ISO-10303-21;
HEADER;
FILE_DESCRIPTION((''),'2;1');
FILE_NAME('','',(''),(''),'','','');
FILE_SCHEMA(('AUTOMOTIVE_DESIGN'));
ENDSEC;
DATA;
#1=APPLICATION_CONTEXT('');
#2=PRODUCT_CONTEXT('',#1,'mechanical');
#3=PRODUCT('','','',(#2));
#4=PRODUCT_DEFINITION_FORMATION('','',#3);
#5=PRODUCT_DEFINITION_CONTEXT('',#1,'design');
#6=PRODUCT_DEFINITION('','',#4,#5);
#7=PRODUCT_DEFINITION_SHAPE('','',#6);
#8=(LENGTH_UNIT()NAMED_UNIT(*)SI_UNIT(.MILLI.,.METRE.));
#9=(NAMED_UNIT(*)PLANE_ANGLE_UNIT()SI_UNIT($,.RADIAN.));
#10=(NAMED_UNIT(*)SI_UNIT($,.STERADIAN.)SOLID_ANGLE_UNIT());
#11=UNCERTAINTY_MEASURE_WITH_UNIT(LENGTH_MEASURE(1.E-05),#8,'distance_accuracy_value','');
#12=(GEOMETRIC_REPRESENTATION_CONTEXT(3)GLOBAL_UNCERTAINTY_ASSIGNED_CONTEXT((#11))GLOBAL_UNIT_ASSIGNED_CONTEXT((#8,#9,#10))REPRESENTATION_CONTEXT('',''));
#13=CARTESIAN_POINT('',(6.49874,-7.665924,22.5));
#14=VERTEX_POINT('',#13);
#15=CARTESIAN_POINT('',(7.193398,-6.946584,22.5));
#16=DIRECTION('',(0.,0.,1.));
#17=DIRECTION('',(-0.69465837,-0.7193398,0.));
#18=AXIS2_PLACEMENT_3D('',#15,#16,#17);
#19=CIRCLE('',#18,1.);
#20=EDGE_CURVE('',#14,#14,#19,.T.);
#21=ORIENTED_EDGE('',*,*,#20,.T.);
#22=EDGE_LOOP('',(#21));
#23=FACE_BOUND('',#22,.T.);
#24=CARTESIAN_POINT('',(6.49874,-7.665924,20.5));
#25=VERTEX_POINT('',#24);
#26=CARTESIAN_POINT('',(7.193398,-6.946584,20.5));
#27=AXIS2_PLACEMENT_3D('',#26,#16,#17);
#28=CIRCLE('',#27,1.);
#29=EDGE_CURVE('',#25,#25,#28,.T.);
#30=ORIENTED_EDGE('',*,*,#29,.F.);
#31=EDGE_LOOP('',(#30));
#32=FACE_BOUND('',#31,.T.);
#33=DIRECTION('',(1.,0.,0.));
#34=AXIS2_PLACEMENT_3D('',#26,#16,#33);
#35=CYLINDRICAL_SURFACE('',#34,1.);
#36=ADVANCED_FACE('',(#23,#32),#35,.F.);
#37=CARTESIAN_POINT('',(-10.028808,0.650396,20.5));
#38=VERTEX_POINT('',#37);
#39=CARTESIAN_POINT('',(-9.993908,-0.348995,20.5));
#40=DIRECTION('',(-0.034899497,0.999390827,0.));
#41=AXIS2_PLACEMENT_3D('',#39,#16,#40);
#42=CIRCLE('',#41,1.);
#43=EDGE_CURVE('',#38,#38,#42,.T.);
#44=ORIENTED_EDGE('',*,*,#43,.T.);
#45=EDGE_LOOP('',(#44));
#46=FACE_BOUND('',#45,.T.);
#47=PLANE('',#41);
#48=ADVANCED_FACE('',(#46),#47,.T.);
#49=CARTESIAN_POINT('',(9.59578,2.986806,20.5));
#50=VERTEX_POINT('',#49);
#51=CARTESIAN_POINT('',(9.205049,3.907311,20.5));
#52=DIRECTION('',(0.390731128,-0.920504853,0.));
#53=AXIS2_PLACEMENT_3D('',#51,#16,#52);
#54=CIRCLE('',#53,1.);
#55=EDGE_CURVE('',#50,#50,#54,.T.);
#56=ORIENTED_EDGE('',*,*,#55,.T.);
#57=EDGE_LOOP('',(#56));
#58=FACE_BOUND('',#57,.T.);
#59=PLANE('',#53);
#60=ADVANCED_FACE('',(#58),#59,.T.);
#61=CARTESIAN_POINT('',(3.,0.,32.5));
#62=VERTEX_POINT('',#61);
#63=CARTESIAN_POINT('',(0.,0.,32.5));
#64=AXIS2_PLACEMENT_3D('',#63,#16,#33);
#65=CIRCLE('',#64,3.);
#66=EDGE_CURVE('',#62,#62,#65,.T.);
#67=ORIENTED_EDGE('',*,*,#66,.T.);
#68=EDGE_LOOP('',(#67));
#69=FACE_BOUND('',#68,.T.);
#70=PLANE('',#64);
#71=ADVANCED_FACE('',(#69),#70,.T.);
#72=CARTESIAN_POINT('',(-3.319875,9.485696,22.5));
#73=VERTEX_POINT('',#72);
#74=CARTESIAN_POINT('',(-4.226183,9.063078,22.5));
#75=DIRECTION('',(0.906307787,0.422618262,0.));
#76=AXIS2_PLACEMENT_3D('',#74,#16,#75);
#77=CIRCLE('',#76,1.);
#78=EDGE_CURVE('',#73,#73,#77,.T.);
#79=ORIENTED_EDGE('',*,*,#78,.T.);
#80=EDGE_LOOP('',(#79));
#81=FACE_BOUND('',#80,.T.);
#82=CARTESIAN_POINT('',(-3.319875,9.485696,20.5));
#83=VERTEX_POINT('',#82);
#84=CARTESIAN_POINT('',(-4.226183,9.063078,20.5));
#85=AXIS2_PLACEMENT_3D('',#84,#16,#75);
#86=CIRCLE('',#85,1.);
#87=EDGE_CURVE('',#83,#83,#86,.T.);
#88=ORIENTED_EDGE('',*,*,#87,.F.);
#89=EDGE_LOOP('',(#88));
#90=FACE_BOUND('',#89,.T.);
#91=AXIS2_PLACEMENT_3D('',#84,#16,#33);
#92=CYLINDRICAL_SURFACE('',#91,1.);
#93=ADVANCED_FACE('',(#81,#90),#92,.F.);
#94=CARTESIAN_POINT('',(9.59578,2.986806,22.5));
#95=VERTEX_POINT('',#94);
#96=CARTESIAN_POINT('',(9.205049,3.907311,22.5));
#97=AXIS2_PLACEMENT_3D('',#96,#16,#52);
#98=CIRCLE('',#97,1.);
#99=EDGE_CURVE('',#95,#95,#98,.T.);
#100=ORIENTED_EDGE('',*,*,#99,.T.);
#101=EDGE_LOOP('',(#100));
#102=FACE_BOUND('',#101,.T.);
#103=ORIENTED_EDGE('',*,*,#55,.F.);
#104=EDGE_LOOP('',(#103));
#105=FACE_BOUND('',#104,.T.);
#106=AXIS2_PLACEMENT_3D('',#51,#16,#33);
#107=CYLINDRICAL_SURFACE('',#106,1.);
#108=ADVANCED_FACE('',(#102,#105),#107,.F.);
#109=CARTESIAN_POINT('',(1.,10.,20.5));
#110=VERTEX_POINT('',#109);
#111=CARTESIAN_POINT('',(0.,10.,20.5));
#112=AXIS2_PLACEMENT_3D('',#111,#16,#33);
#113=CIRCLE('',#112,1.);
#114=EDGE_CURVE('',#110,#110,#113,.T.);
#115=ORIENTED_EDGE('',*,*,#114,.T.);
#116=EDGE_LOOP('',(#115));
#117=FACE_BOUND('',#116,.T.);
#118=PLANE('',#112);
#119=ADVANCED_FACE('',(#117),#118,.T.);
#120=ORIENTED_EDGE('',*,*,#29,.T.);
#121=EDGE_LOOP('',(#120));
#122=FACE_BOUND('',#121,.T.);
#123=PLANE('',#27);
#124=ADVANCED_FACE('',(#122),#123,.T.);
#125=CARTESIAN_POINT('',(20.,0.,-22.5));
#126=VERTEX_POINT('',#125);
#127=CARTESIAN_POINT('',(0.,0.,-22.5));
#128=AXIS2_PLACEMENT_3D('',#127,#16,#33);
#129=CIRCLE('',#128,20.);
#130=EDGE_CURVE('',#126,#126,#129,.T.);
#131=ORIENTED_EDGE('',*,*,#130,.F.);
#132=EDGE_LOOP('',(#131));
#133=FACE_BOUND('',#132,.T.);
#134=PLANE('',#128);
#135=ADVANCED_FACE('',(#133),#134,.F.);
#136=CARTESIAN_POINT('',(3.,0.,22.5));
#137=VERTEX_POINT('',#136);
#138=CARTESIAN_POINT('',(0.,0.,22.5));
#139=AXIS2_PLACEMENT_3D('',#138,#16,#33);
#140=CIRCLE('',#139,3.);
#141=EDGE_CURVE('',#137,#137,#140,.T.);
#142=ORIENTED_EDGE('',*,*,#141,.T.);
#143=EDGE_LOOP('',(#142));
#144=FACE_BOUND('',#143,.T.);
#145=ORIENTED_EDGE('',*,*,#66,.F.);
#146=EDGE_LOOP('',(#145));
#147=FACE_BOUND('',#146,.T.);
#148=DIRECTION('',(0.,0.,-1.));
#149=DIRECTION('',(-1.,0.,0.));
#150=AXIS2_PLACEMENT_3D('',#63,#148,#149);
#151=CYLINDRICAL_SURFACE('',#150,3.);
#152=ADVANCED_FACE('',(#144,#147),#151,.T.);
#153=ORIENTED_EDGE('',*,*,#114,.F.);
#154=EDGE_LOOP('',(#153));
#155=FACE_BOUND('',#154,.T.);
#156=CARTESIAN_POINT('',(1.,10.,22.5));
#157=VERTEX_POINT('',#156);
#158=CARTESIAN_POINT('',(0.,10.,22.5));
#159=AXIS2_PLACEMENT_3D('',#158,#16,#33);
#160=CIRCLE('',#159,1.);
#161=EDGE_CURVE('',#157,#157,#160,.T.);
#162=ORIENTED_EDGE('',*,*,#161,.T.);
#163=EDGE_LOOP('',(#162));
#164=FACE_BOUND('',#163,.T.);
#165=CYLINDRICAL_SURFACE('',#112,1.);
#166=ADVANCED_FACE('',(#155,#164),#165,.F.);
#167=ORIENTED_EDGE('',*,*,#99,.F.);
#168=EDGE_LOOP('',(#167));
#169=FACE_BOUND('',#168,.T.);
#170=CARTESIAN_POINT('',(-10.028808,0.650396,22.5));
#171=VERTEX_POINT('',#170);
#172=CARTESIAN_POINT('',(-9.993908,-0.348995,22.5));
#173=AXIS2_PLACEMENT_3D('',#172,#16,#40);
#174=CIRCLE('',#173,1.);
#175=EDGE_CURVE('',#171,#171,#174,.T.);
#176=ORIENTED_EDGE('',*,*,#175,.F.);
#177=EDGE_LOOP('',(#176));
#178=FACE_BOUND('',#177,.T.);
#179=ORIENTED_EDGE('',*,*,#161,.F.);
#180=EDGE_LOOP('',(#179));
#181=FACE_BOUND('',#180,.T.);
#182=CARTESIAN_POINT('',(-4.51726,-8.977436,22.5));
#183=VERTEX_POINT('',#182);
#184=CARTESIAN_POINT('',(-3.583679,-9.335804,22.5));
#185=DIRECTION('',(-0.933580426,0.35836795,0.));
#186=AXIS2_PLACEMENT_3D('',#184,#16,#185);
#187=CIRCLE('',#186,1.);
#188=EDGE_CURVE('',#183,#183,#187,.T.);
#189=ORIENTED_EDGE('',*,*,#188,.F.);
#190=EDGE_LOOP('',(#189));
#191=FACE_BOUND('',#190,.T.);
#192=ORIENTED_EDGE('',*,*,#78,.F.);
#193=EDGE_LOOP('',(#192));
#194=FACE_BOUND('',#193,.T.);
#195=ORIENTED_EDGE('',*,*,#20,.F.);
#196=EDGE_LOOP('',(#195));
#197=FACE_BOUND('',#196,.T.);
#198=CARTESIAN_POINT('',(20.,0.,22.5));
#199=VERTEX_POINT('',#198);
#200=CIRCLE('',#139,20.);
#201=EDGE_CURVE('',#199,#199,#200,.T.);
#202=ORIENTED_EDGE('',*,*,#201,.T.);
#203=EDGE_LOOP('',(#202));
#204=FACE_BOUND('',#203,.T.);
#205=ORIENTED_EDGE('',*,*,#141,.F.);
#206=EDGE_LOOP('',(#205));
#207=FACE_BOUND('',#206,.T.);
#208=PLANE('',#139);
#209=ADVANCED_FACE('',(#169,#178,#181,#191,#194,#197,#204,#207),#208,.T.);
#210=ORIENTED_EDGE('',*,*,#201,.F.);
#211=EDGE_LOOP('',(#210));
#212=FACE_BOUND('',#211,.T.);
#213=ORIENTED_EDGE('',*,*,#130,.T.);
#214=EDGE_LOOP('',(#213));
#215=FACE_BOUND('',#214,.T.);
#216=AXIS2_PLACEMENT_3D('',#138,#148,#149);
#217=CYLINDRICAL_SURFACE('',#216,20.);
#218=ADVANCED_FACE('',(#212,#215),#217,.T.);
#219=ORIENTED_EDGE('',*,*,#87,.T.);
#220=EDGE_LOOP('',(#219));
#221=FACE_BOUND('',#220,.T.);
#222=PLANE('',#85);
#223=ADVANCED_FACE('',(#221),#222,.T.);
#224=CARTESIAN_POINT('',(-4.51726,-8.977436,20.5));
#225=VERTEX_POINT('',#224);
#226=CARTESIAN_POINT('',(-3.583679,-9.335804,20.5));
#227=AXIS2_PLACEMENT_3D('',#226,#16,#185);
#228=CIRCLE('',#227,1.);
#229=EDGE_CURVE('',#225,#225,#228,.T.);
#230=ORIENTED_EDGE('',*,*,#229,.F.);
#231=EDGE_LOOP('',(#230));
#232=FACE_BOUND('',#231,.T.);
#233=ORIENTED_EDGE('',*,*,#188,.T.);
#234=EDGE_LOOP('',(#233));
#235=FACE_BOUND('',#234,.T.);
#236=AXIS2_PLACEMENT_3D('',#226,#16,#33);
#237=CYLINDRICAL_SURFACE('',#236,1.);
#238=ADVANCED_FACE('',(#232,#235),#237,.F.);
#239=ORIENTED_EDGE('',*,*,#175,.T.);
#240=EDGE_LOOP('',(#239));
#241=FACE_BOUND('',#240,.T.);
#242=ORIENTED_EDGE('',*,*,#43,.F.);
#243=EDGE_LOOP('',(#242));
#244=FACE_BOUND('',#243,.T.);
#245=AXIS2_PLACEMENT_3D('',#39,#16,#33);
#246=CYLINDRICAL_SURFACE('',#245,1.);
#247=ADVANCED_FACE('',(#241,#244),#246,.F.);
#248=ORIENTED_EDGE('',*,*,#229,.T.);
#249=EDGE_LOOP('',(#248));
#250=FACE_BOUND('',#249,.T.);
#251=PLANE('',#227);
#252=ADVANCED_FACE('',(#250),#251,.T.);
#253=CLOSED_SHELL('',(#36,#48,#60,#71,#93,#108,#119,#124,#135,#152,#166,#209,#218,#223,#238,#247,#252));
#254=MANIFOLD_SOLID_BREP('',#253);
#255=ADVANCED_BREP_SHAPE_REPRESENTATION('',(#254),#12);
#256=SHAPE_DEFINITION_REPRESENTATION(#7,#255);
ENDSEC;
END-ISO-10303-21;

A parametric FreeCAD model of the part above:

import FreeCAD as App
import Part
import Sketcher

V = App.Vector
Q = App.Units.Quantity

doc = App.newDocument("Part")
body = doc.addObject("PartDesign::Body", "Body")

sketch1 = body.newObject("Sketcher::SketchObject", "Sketch")
sketch1.AttachmentSupport = (doc.getObject("XY_Plane"), [""])
sketch1.MapMode = "FlatFace"
sketch1.addGeometry(Part.Circle(V(0, 0, 0), V(0, 0, 1), 20), False)
sketch1.addConstraint(Sketcher.Constraint("Coincident", 0, 3, -1, 1))
sketch1.addConstraint(Sketcher.Constraint("Diameter", 0, Q("40 mm")))
pad1 = body.newObject("PartDesign::Pad", "Pad")
pad1.Profile = sketch1
pad1.Length = 45
pad1.Midplane = True

sketch2 = body.newObject("Sketcher::SketchObject", "Sketch001")
sketch2.AttachmentSupport = (doc.getObject("XY_Plane"), [""])
sketch2.MapMode = "FlatFace"
sketch2.AttachmentOffset = App.Placement(V(0, 0, 22.5), App.Rotation())
sketch2.addGeometry(Part.Circle(V(0, 0, 0), V(0, 0, 1), 3), False)
sketch2.addConstraint(Sketcher.Constraint("Coincident", 0, 3, -1, 1))
sketch2.addConstraint(Sketcher.Constraint("Diameter", 0, Q("6 mm")))
pad2 = body.newObject("PartDesign::Pad", "Pad001")
pad2.Profile = sketch2
pad2.Length = 10

sketch3 = body.newObject("Sketcher::SketchObject", "Sketch002")
sketch3.AttachmentSupport = (doc.getObject("XY_Plane"), [""])
sketch3.MapMode = "FlatFace"
sketch3.AttachmentOffset = App.Placement(V(0, 0, 22.5), App.Rotation())
sketch3.addGeometry(Part.Circle(V(0, 10, 0), V(0, 0, 1), 1), False)
sketch3.addConstraint(Sketcher.Constraint("PointOnObject", 0, 3, -2))
sketch3.addConstraint(Sketcher.Constraint("Diameter", 0, Q("2 mm")))
sketch3.addConstraint(Sketcher.Constraint("DistanceY", -1, 1, 0, 3, Q("10 mm")))
pocket1 = body.newObject("PartDesign::Pocket", "Pocket")
pocket1.Profile = sketch3
pocket1.Length = 2
doc.recompute()

polarpattern = body.newObject("PartDesign::PolarPattern", "PolarPattern")
polarpattern.Originals = [pocket1]
polarpattern.Axis = (doc.getObject("Z_Axis"), [""])
polarpattern.Angle = 335
polarpattern.Occurrences = 6
polarpattern.Reversed = True
body.Tip = polarpattern

doc.recompute()
